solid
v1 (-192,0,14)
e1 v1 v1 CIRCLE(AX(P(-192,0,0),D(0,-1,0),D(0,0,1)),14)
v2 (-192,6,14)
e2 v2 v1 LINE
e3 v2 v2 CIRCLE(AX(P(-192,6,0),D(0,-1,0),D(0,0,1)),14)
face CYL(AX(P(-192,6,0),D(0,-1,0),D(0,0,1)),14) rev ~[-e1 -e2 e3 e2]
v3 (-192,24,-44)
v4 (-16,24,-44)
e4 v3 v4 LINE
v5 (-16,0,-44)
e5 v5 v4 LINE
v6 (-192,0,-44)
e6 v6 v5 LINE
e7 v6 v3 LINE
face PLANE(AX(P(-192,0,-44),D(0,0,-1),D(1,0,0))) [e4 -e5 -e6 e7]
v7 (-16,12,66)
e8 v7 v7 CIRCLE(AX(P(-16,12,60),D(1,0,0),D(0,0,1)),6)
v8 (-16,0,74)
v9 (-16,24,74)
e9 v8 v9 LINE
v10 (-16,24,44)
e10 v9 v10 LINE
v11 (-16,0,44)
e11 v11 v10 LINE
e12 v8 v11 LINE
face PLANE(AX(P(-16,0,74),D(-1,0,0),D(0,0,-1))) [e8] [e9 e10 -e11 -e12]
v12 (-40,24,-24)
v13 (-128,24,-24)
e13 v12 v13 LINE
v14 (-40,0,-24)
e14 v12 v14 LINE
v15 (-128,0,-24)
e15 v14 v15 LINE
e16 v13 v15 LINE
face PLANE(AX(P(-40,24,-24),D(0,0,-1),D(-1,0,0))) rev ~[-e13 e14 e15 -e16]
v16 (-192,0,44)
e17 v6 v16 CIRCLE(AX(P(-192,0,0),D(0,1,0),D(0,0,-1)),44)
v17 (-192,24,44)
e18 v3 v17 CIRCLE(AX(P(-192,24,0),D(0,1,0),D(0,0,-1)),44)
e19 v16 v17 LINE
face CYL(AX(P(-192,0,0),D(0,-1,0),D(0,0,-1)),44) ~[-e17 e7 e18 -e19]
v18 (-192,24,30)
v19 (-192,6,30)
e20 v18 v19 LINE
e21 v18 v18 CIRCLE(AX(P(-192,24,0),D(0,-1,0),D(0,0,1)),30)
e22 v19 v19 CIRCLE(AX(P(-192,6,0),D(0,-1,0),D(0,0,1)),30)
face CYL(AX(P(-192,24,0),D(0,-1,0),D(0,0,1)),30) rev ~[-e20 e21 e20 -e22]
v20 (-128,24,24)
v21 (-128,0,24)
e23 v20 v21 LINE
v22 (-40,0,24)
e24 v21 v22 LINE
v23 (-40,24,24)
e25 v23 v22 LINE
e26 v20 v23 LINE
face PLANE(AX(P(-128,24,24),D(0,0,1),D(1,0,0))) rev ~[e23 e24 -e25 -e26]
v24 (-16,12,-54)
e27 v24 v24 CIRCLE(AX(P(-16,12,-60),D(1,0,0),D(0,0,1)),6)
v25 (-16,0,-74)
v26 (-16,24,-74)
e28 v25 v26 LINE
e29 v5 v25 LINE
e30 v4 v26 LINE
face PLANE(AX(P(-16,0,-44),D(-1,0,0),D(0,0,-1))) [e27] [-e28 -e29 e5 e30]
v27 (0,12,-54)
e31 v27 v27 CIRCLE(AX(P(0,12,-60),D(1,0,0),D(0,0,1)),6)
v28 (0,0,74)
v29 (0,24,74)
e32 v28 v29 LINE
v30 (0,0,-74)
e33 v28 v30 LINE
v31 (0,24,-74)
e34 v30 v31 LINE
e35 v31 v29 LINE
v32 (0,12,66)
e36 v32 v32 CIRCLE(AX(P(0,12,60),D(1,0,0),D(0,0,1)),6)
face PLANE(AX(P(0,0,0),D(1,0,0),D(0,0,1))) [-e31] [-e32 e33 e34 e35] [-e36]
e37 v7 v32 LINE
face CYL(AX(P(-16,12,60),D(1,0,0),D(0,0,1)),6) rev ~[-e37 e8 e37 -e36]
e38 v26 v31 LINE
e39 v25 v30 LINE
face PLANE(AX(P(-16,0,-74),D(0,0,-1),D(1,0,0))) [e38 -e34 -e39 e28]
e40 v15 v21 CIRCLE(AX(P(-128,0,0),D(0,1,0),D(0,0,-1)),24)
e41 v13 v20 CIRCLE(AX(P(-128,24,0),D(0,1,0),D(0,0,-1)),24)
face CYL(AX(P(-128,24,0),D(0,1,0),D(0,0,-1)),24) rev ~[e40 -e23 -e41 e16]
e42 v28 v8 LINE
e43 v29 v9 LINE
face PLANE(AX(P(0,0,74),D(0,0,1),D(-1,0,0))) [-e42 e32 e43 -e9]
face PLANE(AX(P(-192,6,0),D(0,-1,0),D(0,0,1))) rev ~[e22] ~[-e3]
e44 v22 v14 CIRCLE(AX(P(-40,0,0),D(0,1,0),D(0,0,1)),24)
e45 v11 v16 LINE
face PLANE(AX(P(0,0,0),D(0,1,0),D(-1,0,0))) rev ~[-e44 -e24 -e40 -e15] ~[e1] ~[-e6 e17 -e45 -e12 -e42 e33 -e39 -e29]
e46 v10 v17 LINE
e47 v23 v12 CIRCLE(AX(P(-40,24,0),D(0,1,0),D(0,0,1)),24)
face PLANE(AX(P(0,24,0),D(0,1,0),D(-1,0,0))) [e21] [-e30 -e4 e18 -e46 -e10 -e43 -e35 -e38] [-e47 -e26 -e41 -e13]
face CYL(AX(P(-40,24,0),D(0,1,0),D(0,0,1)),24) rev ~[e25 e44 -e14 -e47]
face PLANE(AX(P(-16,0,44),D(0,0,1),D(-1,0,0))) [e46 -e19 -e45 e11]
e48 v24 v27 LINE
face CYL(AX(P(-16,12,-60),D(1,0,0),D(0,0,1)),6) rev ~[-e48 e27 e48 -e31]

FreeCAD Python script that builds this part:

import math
import FreeCAD as App
import Part
import Sketcher

doc = App.newDocument("Part")
body = doc.addObject("PartDesign::Body", "Body")

# Sketch on XZ plane
sketch1 = body.newObject("Sketcher::SketchObject", "Sketch")
sketch1.AttachmentSupport = (doc.getObject("XZ_Plane"), [""])
sketch1.MapMode = "FlatFace"
sketch1.addGeometry([
    Part.LineSegment(App.Vector(0, 74, 0), App.Vector(0, -74, 0)),  # 0
    Part.LineSegment(App.Vector(0, -74, 0), App.Vector(-16, -74, 0)),  # 1
    Part.LineSegment(App.Vector(-16, -74, 0), App.Vector(-16, -44, 0)),  # 2
    Part.LineSegment(App.Vector(-16, -44, 0), App.Vector(-192, -44, 0)),  # 3
    Part.ArcOfCircle(Part.Circle(App.Vector(-192, 0, 0), App.Vector(0, 0, 1), 44), math.radians(90), math.radians(270)),  # 4
    Part.LineSegment(App.Vector(-192, 44, 0), App.Vector(-16, 44, 0)),  # 5
    Part.LineSegment(App.Vector(-16, 44, 0), App.Vector(-16, 74, 0)),  # 6
    Part.LineSegment(App.Vector(-16, 74, 0), App.Vector(0, 74, 0)),  # 7
], False)
sketch1.addConstraint([
    Sketcher.Constraint("Coincident", 0, 2, 1, 1),
    Sketcher.Constraint("Coincident", 1, 2, 2, 1),
    Sketcher.Constraint("Coincident", 2, 2, 3, 1),
    Sketcher.Constraint("Tangent", 3, 2, 4, 2),
    Sketcher.Constraint("Tangent", 4, 1, 5, 1),
    Sketcher.Constraint("Coincident", 5, 2, 6, 1),
    Sketcher.Constraint("Coincident", 6, 2, 7, 1),
    Sketcher.Constraint("Coincident", 7, 2, 0, 1),
    Sketcher.Constraint("Vertical", 0),
    Sketcher.Constraint("Horizontal", 1),
    Sketcher.Constraint("Vertical", 2),
    Sketcher.Constraint("Horizontal", 3),
    Sketcher.Constraint("Horizontal", 5),
    Sketcher.Constraint("Vertical", 6),
    Sketcher.Constraint("Horizontal", 7),
    Sketcher.Constraint("Symmetric", 0, 2, 7, 2, -1, 1),
    Sketcher.Constraint("Symmetric", 2, 2, 5, 2, -1),
    Sketcher.Constraint("Radius", 4, 44.0),
    Sketcher.Constraint("DistanceX", 1, 2, 1, 1, 16.0),
    Sketcher.Constraint("DistanceY", 2, 1, 2, 2, 30.0),
    Sketcher.Constraint("DistanceX", 4, 3, -1, 1, 192.0),
])
pad1 = body.newObject("PartDesign::Pad", "Pad")
pad1.Profile = sketch1
pad1.Length = 24
pad1.Reversed = True

# Sketch on XZ plane
sketch2 = body.newObject("Sketcher::SketchObject", "Sketch001")
sketch2.AttachmentSupport = (doc.getObject("XZ_Plane"), [""])
sketch2.MapMode = "FlatFace"
sketch2.AttachmentOffset = App.Placement(App.Vector(0, 0, -24), App.Rotation())
sketch2.addGeometry(Part.Circle(App.Vector(-192, 0, 0), App.Vector(0, 0, 1), 30), False)
sketch2.addConstraint([
    Sketcher.Constraint("PointOnObject", 0, 3, -1),
    Sketcher.Constraint("Diameter", 0, 60.0),
    Sketcher.Constraint("DistanceX", 0, 3, -1, 1, 192.0),
])
doc.recompute()
hole = body.newObject("PartDesign::Hole", "Hole")
hole.Profile = sketch2
hole.ThreadType = "None"
hole.Diameter = 60
hole.DepthType = "Dimension"
hole.Depth = 18
hole.DrillPoint = "Flat"
hole.Reversed = True

# Sketch on XZ plane
sketch3 = body.newObject("Sketcher::SketchObject", "Sketch002")
sketch3.AttachmentSupport = (doc.getObject("XZ_Plane"), [""])
sketch3.MapMode = "FlatFace"
sketch3.AttachmentOffset = App.Placement(App.Vector(0, 0, -6), App.Rotation())
sketch3.addGeometry(Part.Circle(App.Vector(-192, 0, 0), App.Vector(0, 0, 1), 14), False)
sketch3.addConstraint([
    Sketcher.Constraint("PointOnObject", 0, 3, -1),
    Sketcher.Constraint("Diameter", 0, 28.0),
    Sketcher.Constraint("DistanceX", 0, 3, -1, 1, 192.0),
])
doc.recompute()
hole2 = body.newObject("PartDesign::Hole", "Hole001")
hole2.Profile = sketch3
hole2.ThreadType = "None"
hole2.Diameter = 28
hole2.DepthType = "Dimension"
hole2.Depth = 6
hole2.DrillPoint = "Flat"
hole2.Reversed = True

# Sketch on XZ plane
sketch4 = body.newObject("Sketcher::SketchObject", "Sketch003")
sketch4.AttachmentSupport = (doc.getObject("XZ_Plane"), [""])
sketch4.MapMode = "FlatFace"
sketch4.AttachmentOffset = App.Placement(App.Vector(0, 0, -24), App.Rotation())
sketch4.addGeometry([
    Part.ArcOfCircle(Part.Circle(App.Vector(-40, 0, 0), App.Vector(0, 0, 1), 24), math.radians(-90), math.radians(90)),
    Part.LineSegment(App.Vector(-40, -24, 0), App.Vector(-128, -24, 0)),
    Part.ArcOfCircle(Part.Circle(App.Vector(-128, 0, 0), App.Vector(0, 0, 1), 24), math.radians(90), math.radians(270)),
    Part.LineSegment(App.Vector(-128, 24, 0), App.Vector(-40, 24, 0)),
], False)
sketch4.addConstraint([
    Sketcher.Constraint("Tangent", 0, 1, 1, 1),
    Sketcher.Constraint("Tangent", 1, 2, 2, 2),
    Sketcher.Constraint("Tangent", 2, 1, 3, 1),
    Sketcher.Constraint("Tangent", 3, 2, 0, 2),
    Sketcher.Constraint("Horizontal", 1),
    Sketcher.Constraint("Horizontal", 3),
    Sketcher.Constraint("PointOnObject", 0, 3, -1),
    Sketcher.Constraint("Radius", 0, 24.0),
    Sketcher.Constraint("DistanceX", 1, 2, 1, 1, 88.0),
    Sketcher.Constraint("DistanceX", 0, 3, -1, 1, 40.0),
])
pocket1 = body.newObject("PartDesign::Pocket", "Pocket")
pocket1.Profile = sketch4
pocket1.Length = 24
pocket1.Reversed = True

# Sketch on YZ plane
sketch5 = body.newObject("Sketcher::SketchObject", "Sketch004")
sketch5.AttachmentSupport = (doc.getObject("YZ_Plane"), [""])
sketch5.MapMode = "FlatFace"
sketch5.AttachmentOffset = App.Placement(App.Vector(0, 0, -16), App.Rotation())
sketch5.addGeometry([
    Part.Circle(App.Vector(12, -60, 0), App.Vector(0, 0, 1), 6),
    Part.Circle(App.Vector(12, 60, 0), App.Vector(0, 0, 1), 6),
], False)
sketch5.addConstraint([
    Sketcher.Constraint("Equal", 0, 1),
    Sketcher.Constraint("Symmetric", 0, 3, 1, 3, -1),
    Sketcher.Constraint("Diameter", 0, 12.0),
    Sketcher.Constraint("DistanceX", -1, 1, 0, 3, 12.0),
    Sketcher.Constraint("DistanceY", 0, 3, -1, 1, 60.0),
])
doc.recompute()
hole3 = body.newObject("PartDesign::Hole", "Hole002")
hole3.Profile = sketch5
hole3.ThreadType = "None"
hole3.Diameter = 12
hole3.DepthType = "Dimension"
hole3.Depth = 16
hole3.DrillPoint = "Flat"
hole3.Reversed = True

doc.recompute()
